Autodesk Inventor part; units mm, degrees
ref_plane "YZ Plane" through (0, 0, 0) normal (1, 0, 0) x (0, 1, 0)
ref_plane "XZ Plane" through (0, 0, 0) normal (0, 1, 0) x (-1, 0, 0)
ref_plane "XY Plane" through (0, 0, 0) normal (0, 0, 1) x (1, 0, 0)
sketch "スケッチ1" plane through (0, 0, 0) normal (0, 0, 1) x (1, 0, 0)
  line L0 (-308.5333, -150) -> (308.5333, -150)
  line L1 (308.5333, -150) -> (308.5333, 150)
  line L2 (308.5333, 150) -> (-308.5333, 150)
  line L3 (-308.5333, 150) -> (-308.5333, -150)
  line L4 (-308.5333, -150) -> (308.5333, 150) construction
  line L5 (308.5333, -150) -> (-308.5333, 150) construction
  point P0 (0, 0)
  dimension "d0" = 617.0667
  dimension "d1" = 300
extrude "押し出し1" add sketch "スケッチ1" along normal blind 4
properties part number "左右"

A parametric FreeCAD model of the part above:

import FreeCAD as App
import Part
import Sketcher
Q = App.Units.Quantity


def add_polygon(sketch, points):
    """Adds a closed chain of lines whose ends are joined by coincident constraints."""
    first, n = sketch.GeometryCount, len(points)
    for a, b in zip(points, points[1:] + points[:1]):
        sketch.addGeometry(Part.LineSegment(App.Vector(*a, 0), App.Vector(*b, 0)), False)
    for i in range(n):
        sketch.addConstraint(Sketcher.Constraint("Coincident", first + i, 2, first + (i + 1) % n, 1))

doc = App.newDocument("Part")
body = doc.addObject("PartDesign::Body", "Body")

sketch1 = doc.addObject("Sketcher::SketchObject", "Sketch")
body.addObject(sketch1)
sketch1.AttachmentSupport = (doc.XY_Plane, [""])
sketch1.MapMode = "FlatFace"
add_polygon(sketch1, [(-308.5333, 150), (-308.5333, -150), (308.5333, -150), (308.5333, 150)])
sketch1.addConstraint(Sketcher.Constraint("Vertical", 0))
sketch1.addConstraint(Sketcher.Constraint("Horizontal", 1))
sketch1.addConstraint(Sketcher.Constraint("Vertical", 2))
sketch1.addConstraint(Sketcher.Constraint("Horizontal", 3))
sketch1.addConstraint(Sketcher.Constraint("Symmetric", 0, 2, 2, 2, -1, 1))
sketch1.addConstraint(Sketcher.Constraint("DistanceY", 0, 2, 0, 1, Q("300 mm")))
sketch1.addConstraint(Sketcher.Constraint("DistanceX", 1, 1, 1, 2, Q("617.0666 mm")))
pad1 = doc.addObject("PartDesign::Pad", "Pad")
body.addObject(pad1)
pad1.Profile = sketch1
pad1.Length = 4

doc.recompute()
